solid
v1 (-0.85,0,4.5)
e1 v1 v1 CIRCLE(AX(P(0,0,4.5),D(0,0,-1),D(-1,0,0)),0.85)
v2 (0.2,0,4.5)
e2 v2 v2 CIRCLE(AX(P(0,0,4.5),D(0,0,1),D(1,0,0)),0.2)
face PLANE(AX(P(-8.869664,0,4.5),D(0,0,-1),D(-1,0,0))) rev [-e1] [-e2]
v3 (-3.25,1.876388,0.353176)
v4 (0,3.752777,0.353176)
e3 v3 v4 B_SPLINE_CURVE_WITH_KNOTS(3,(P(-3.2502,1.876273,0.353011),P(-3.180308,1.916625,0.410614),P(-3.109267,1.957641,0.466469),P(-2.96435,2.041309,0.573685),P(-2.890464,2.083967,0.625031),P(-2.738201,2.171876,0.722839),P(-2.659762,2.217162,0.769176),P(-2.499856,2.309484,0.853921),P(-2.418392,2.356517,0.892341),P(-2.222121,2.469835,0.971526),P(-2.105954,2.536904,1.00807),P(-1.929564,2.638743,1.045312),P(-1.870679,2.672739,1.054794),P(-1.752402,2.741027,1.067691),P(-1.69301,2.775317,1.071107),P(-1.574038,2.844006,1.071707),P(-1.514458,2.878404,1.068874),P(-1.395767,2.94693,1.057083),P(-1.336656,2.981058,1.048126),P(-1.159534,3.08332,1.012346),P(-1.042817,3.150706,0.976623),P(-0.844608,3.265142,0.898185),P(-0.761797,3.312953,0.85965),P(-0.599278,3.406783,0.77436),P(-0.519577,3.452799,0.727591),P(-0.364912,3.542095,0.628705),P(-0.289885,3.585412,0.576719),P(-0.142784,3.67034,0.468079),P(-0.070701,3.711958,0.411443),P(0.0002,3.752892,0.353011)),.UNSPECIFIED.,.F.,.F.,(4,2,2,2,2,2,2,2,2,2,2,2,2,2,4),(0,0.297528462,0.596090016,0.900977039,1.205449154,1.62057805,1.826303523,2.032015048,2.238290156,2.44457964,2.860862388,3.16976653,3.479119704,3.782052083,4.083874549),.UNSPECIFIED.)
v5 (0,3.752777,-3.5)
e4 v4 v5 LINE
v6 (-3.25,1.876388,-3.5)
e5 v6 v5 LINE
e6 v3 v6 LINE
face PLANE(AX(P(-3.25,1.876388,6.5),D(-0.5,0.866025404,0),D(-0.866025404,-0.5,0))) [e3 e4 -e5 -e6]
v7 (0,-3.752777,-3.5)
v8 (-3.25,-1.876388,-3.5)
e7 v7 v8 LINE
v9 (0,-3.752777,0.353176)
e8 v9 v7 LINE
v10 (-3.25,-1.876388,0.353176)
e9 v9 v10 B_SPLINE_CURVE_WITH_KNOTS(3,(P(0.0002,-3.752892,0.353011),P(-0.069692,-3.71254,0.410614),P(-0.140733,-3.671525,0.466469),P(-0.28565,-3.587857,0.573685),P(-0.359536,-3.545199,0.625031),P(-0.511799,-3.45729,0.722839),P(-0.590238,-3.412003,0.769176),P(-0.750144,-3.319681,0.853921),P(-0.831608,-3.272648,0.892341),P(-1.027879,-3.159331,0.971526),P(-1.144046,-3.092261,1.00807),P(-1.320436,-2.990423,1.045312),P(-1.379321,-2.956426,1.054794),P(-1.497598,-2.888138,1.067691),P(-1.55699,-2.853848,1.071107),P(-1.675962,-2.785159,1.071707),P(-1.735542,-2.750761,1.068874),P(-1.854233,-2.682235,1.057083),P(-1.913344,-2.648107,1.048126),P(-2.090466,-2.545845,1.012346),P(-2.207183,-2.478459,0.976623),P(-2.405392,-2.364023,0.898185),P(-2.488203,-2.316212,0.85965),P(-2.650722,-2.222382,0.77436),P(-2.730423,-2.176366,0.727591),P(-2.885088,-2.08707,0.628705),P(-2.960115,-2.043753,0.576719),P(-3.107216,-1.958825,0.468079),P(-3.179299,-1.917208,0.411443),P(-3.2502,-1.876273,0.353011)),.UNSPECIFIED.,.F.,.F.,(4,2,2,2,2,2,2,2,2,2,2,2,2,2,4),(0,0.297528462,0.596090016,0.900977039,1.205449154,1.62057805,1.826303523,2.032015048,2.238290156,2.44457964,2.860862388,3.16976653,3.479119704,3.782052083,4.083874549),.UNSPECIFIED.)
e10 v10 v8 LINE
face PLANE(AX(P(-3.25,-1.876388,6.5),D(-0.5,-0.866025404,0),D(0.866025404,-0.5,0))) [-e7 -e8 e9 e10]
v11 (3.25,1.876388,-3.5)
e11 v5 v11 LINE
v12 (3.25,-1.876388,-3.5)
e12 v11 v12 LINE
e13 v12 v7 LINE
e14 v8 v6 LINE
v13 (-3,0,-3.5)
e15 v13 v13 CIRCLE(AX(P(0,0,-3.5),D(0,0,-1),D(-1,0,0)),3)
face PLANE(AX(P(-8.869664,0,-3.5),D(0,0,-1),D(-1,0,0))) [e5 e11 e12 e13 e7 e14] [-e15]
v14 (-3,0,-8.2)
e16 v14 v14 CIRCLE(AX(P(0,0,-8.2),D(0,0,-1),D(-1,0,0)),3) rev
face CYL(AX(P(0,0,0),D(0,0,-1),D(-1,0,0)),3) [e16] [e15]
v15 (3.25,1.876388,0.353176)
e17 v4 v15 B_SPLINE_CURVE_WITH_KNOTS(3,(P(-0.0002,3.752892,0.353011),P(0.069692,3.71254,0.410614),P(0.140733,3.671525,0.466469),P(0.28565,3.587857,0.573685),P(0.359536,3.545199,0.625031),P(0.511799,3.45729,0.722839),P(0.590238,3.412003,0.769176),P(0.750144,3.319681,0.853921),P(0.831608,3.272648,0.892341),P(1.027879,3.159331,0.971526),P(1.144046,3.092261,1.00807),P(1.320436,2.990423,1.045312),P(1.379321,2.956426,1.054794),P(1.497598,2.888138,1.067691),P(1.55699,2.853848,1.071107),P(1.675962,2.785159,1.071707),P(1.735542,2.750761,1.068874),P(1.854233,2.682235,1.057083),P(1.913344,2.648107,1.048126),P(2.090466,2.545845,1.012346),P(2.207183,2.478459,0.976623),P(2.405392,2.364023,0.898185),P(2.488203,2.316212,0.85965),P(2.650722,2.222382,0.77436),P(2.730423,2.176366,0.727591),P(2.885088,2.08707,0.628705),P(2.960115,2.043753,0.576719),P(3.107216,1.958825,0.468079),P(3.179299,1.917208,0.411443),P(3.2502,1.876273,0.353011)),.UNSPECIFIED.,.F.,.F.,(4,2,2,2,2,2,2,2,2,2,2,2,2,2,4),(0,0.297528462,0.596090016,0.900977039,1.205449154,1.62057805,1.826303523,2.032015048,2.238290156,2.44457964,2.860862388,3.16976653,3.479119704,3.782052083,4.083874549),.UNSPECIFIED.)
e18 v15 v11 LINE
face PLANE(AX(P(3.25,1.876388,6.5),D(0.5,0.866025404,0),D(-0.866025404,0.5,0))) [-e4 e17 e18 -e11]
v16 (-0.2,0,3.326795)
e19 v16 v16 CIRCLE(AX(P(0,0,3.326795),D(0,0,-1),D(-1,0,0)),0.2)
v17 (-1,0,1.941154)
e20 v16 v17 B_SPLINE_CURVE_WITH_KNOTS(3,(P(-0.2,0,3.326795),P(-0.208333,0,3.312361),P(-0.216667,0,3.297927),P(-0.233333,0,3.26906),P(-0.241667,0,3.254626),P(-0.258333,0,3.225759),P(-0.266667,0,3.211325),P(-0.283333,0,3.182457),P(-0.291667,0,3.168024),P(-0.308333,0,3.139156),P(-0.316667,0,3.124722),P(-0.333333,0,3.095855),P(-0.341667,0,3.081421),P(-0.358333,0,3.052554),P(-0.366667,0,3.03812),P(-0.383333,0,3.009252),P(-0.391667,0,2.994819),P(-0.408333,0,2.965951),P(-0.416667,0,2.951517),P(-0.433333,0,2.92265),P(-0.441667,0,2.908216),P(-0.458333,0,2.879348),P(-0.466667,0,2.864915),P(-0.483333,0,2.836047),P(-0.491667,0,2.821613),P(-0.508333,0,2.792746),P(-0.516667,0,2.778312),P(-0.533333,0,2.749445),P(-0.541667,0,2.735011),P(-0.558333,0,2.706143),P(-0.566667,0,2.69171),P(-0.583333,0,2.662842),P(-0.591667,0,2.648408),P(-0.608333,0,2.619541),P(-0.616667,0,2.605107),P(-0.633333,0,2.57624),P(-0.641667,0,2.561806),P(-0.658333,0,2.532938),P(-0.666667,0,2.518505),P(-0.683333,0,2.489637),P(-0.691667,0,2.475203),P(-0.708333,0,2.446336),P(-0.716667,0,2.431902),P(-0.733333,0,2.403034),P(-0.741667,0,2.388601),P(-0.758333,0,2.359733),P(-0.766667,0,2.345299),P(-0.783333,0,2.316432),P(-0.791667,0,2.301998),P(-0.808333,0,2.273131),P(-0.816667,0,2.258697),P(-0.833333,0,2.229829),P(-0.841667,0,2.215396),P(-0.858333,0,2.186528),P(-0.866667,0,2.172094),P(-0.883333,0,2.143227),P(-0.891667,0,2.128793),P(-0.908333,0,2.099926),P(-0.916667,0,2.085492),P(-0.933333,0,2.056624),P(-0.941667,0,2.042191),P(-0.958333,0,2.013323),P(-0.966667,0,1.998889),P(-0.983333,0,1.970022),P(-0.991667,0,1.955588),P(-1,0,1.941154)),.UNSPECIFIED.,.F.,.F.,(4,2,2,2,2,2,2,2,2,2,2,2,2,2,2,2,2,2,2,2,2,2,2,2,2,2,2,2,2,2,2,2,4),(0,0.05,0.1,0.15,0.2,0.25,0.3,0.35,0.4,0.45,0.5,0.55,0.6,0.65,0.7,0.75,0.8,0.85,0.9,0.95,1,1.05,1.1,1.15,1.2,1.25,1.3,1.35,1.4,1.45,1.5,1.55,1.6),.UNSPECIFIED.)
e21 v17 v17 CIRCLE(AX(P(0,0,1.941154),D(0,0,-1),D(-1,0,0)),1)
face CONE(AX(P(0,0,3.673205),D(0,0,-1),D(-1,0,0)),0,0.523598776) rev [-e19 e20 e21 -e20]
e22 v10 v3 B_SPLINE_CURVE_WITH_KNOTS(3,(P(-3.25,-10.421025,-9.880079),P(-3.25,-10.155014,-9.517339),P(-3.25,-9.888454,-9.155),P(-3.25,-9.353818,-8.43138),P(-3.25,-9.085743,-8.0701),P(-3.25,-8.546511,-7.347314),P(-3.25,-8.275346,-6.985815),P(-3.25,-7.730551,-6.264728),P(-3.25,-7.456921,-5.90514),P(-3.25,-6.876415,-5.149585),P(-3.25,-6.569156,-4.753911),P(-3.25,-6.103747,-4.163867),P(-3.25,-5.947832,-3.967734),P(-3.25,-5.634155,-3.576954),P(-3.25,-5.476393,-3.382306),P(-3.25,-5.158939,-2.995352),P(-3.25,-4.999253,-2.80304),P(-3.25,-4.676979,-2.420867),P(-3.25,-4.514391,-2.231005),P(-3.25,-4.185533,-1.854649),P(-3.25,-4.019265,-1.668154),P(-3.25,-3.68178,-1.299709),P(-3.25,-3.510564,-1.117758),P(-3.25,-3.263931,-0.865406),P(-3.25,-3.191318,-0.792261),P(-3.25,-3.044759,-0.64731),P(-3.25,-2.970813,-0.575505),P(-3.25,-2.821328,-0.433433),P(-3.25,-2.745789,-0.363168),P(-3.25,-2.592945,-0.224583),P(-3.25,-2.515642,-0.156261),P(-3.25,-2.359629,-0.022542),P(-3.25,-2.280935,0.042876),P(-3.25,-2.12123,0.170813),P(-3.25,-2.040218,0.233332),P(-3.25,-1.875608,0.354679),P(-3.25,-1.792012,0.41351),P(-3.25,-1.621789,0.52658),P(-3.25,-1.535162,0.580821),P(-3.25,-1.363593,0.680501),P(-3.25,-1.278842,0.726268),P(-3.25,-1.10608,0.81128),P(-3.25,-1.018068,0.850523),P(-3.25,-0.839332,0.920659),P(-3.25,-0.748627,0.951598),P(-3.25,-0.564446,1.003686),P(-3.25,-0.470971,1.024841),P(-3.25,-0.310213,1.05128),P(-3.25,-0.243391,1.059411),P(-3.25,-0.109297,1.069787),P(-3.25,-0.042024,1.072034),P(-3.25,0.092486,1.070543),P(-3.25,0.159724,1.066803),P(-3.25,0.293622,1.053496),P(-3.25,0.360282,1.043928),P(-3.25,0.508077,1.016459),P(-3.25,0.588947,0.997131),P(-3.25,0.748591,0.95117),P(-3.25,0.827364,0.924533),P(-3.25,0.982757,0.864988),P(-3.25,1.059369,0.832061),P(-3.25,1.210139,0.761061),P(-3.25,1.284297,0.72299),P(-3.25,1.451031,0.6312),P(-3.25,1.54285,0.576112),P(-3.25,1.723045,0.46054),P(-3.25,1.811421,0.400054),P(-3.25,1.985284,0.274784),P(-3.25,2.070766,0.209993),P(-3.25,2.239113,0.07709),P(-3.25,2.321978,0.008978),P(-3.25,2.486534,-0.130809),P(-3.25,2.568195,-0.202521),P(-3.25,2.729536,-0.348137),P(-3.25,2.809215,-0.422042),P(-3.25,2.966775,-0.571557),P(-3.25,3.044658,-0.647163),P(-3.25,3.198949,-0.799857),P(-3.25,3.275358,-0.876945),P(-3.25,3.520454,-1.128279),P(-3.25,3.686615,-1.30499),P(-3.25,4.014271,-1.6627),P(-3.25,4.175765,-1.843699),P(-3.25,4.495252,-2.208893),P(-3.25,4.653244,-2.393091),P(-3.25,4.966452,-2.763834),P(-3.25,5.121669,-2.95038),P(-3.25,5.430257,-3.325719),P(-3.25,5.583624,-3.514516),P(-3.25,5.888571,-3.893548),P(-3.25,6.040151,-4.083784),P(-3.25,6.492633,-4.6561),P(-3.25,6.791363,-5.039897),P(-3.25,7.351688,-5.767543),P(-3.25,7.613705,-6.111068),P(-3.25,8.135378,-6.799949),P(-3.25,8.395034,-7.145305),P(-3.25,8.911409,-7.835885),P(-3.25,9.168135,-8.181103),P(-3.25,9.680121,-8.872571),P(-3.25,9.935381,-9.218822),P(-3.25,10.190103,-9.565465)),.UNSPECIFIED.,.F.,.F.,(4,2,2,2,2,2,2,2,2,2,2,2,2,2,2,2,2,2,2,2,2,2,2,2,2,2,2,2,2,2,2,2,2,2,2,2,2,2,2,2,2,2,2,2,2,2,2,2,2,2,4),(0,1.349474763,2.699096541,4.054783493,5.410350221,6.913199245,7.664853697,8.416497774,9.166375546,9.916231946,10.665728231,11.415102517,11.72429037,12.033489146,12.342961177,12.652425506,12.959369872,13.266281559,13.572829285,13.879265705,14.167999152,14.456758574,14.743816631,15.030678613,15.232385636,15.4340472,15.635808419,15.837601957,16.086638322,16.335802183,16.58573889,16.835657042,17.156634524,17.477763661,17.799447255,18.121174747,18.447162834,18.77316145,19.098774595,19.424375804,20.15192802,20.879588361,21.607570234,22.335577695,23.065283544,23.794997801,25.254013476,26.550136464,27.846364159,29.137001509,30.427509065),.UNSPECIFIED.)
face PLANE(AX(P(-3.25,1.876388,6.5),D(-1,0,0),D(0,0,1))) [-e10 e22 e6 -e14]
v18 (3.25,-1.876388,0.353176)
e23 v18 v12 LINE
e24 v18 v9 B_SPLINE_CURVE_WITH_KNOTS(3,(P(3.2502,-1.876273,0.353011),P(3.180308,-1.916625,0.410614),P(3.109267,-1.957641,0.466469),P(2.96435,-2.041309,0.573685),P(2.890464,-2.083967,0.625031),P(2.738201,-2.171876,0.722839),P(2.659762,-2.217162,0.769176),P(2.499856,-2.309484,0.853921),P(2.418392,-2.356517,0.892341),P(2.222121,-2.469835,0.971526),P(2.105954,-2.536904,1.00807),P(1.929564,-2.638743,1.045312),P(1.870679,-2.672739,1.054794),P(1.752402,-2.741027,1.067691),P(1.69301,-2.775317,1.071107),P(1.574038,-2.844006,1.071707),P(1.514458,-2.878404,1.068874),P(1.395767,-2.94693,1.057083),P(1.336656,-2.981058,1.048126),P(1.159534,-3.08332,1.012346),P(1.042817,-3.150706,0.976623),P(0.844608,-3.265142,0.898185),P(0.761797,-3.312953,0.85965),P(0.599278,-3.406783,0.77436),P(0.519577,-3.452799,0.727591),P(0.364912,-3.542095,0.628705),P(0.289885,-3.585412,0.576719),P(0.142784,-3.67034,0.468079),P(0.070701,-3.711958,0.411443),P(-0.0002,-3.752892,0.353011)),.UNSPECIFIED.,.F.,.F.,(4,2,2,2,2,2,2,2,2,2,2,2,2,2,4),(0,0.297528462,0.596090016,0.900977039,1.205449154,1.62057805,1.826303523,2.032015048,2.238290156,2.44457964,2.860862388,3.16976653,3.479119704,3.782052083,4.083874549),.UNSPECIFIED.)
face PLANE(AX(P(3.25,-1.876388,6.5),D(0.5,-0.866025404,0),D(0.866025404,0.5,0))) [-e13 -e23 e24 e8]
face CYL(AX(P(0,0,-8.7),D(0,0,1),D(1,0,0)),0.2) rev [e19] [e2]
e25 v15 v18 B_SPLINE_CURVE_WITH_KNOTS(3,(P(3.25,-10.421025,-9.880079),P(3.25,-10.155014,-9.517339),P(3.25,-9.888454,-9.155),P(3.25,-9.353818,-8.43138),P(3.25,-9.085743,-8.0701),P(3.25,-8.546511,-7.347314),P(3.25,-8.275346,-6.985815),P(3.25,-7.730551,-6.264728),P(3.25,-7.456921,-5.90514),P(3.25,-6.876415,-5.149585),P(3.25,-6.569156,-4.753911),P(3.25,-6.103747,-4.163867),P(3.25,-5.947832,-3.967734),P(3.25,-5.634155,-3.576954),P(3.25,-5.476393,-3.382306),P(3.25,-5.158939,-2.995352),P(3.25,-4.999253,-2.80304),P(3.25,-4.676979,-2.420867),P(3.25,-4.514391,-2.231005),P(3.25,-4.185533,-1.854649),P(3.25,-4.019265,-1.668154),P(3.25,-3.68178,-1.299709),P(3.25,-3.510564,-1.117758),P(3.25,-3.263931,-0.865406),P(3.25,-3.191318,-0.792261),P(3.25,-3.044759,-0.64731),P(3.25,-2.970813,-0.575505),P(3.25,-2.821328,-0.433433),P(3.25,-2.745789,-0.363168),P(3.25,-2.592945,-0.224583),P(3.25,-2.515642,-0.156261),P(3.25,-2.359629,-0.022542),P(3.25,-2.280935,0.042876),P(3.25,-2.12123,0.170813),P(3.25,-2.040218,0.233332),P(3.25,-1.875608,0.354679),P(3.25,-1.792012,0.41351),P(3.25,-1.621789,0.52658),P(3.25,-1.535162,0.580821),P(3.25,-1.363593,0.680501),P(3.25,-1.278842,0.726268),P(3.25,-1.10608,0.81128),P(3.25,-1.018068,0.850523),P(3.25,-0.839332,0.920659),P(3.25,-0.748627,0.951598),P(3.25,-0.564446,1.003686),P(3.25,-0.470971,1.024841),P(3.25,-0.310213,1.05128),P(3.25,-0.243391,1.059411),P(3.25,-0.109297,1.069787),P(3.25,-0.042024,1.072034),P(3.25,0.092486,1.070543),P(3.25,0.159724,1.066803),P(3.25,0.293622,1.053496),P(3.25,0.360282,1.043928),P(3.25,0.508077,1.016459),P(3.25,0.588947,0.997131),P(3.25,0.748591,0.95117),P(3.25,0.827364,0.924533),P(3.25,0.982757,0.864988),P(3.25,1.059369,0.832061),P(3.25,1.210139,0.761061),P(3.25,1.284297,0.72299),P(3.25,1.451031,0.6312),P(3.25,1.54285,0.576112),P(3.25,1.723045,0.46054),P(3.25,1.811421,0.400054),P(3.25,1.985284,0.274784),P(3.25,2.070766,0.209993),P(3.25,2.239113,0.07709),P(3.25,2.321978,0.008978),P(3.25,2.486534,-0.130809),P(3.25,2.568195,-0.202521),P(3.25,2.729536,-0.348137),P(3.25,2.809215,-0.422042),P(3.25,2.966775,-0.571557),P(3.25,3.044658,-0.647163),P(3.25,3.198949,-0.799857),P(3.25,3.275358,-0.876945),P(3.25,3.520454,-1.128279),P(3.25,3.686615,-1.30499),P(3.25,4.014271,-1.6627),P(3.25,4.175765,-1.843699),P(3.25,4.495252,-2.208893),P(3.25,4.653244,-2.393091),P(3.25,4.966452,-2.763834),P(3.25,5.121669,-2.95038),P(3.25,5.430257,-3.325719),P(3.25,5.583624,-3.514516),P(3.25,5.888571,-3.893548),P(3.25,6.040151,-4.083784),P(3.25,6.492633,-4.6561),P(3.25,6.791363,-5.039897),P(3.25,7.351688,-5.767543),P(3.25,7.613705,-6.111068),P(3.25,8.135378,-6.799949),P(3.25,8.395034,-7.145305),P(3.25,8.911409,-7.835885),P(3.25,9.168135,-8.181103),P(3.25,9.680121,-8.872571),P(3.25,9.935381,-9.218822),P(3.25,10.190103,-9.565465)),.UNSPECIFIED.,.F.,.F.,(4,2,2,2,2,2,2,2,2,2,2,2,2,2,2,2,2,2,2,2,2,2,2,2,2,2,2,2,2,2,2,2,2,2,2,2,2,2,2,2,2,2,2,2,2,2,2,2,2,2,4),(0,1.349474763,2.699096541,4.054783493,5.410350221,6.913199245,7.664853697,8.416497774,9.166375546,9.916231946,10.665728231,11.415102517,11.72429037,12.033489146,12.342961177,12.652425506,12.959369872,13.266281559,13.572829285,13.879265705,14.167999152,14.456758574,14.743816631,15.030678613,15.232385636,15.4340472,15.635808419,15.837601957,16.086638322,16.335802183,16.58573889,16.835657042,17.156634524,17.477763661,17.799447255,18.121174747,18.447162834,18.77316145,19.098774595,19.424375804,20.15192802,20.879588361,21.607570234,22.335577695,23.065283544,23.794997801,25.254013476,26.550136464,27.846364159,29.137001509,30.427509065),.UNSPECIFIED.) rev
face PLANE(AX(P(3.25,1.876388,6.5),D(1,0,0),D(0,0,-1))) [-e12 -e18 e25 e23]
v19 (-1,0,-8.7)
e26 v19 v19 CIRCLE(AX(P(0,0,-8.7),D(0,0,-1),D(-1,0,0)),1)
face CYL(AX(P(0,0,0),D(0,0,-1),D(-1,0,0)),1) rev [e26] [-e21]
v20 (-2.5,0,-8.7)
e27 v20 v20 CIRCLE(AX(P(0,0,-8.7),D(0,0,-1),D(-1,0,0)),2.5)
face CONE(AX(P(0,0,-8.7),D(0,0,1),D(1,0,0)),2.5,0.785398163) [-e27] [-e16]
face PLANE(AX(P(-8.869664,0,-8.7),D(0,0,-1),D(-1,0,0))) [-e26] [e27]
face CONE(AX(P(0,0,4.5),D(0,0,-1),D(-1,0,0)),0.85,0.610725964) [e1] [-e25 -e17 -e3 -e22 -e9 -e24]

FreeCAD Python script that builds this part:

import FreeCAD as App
import Part
import Sketcher

V = App.Vector
Q = App.Units.Quantity


def edges_at(feature, points):
    """Names of the edges that pass closest to the given points."""
    edges = feature.Shape.Edges
    near = lambda p: min(range(len(edges)), key=lambda i: edges[i].distToShape(Part.Vertex(*p))[0])
    return sorted({f"Edge{near(p) + 1}" for p in points})

doc = App.newDocument("Part")
params = doc.addObject("Spreadsheet::Sheet", "Params")
for row, (alias, value) in enumerate([
    ("sketch1_width", "2 mm"),
    ("sketch1_width2", "1 mm"),
    ("sketch1_length", "2 mm"),
    ("sketch1_height", "3.5 mm"),
    ("sketch1_height2", "5.2 mm"),
    ("revolution_angle", "360 deg"),
    ("pocket1_length", "10 mm"),
    ("chamfer_size", "0.5 mm"),
    ("sketch3_diameter", "0.4 mm"),
], start=1):
    params.set(f"A{row}", alias)
    params.set(f"B{row}", "=" + value)
    params.setAlias(f"B{row}", alias)

body = doc.addObject("PartDesign::Body", "Body")

# Sketch on XZ plane
sketch1 = doc.addObject("Sketcher::SketchObject", "Sketch")
body.addObject(sketch1)
sketch1.AttachmentSupport = (doc.XZ_Plane, [""])
sketch1.MapMode = "FlatFace"
sketch1.addGeometry([
    Part.LineSegment(V(3, -8.7, 0), V(1, -8.7, 0)),  # 0
    Part.LineSegment(V(1, -8.7, 0), V(1, 1.941154, 0)),  # 1
    Part.LineSegment(V(1, 1.941154, 0), V(0, 3.673205, 0)),  # 2
    Part.LineSegment(V(0, 3.673205, 0), V(0, 4.5, 0)),  # 3
    Part.LineSegment(V(0, 4.5, 0), V(0.85, 4.5, 0)),  # 4
    Part.LineSegment(V(0.85, 4.5, 0), V(4, 0, 0)),  # 5
    Part.LineSegment(V(4, 0, 0), V(4, -3.5, 0)),  # 6
    Part.LineSegment(V(4, -3.5, 0), V(3, -3.5, 0)),  # 7
    Part.LineSegment(V(3, -3.5, 0), V(3, -8.7, 0)),  # 8
], False)
sketch1.addConstraint([
    Sketcher.Constraint("Coincident", 0, 2, 1, 1),
    Sketcher.Constraint("Coincident", 1, 2, 2, 1),
    Sketcher.Constraint("Coincident", 2, 2, 3, 1),
    Sketcher.Constraint("Coincident", 3, 2, 4, 1),
    Sketcher.Constraint("Coincident", 4, 2, 5, 1),
    Sketcher.Constraint("Coincident", 5, 2, 6, 1),
    Sketcher.Constraint("Coincident", 6, 2, 7, 1),
    Sketcher.Constraint("Coincident", 7, 2, 8, 1),
    Sketcher.Constraint("Coincident", 8, 2, 0, 1),
    Sketcher.Constraint("Horizontal", 0),
    Sketcher.Constraint("Vertical", 1),
    Sketcher.Constraint("Vertical", 3),
    Sketcher.Constraint("Horizontal", 4),
    Sketcher.Constraint("Vertical", 6),
    Sketcher.Constraint("Horizontal", 7),
    Sketcher.Constraint("Vertical", 8),
    Sketcher.Constraint("PointOnObject", 2, 2, -2),
    Sketcher.Constraint("PointOnObject", 5, 2, -1),
    Sketcher.Constraint("DistanceX", 0, 2, 0, 1, Q("2 mm")),
    Sketcher.Constraint("DistanceX", 7, 2, 7, 1, Q("1 mm")),
    Sketcher.Constraint("Angle", 2, Q("120 deg")),
    Sketcher.Constraint("Distance", 2, Q("2 mm")),
    Sketcher.Constraint("DistanceY", 6, 2, 6, 1, Q("3.5 mm")),
    Sketcher.Constraint("DistanceY", 8, 2, 8, 1, Q("5.2 mm")),
    Sketcher.Constraint("DistanceY", 6, 2, 4, 2, Q("8 mm")),
    Sketcher.Constraint("DistanceX", 4, 1, 4, 2, Q("0.85 mm")),
    Sketcher.Constraint("DistanceY", 1, 1, 1, 2, Q("10.641154 mm")),
])
sketch1.setExpression("Constraints[18]", "Params.sketch1_width")
sketch1.setExpression("Constraints[19]", "Params.sketch1_width2")
sketch1.setExpression("Constraints[21]", "Params.sketch1_length")
sketch1.setExpression("Constraints[22]", "Params.sketch1_height")
sketch1.setExpression("Constraints[23]", "Params.sketch1_height2")
revolution = doc.addObject("PartDesign::Revolution", "Revolution")
body.addObject(revolution)
revolution.Profile = sketch1
revolution.ReferenceAxis = (sketch1, ["V_Axis"])
revolution.setExpression("Angle", "Params.revolution_angle")

# Sketch on XY plane
sketch2 = doc.addObject("Sketcher::SketchObject", "Sketch001")
body.addObject(sketch2)
sketch2.AttachmentSupport = (doc.XY_Plane, [""])
sketch2.MapMode = "FlatFace"
sketch2.AttachmentOffset = App.Placement(V(0, 0, -3.5), App.Rotation())
sketch2.addGeometry([
    Part.LineSegment(V(6.739, 6.739, 0), V(6.739, -6.739, 0)),  # 0
    Part.LineSegment(V(6.739, -6.739, 0), V(-6.739, -6.739, 0)),  # 1
    Part.LineSegment(V(-6.739, -6.739, 0), V(-6.739, 6.739, 0)),  # 2
    Part.LineSegment(V(-6.739, 6.739, 0), V(6.739, 6.739, 0)),  # 3
    Part.LineSegment(V(0, 3.752777, 0), V(-3.25, 1.876388, 0)),  # 4
    Part.LineSegment(V(-3.25, 1.876388, 0), V(-3.25, -1.876388, 0)),  # 5
    Part.LineSegment(V(-3.25, -1.876388, 0), V(0, -3.752777, 0)),  # 6
    Part.LineSegment(V(0, -3.752777, 0), V(3.25, -1.876388, 0)),  # 7
    Part.LineSegment(V(3.25, -1.876388, 0), V(3.25, 1.876388, 0)),  # 8
    Part.LineSegment(V(3.25, 1.876388, 0), V(0, 3.752777, 0)),  # 9
], False)
sketch2.addConstraint([
    Sketcher.Constraint("Coincident", 0, 2, 1, 1),
    Sketcher.Constraint("Coincident", 1, 2, 2, 1),
    Sketcher.Constraint("Coincident", 2, 2, 3, 1),
    Sketcher.Constraint("Coincident", 3, 2, 0, 1),
    Sketcher.Constraint("Coincident", 4, 2, 5, 1),
    Sketcher.Constraint("Coincident", 5, 2, 6, 1),
    Sketcher.Constraint("Coincident", 6, 2, 7, 1),
    Sketcher.Constraint("Coincident", 7, 2, 8, 1),
    Sketcher.Constraint("Coincident", 8, 2, 9, 1),
    Sketcher.Constraint("Coincident", 9, 2, 4, 1),
    Sketcher.Constraint("Vertical", 0),
    Sketcher.Constraint("Horizontal", 1),
    Sketcher.Constraint("Vertical", 2),
    Sketcher.Constraint("Horizontal", 3),
    Sketcher.Constraint("Vertical", 5),
    Sketcher.Constraint("Vertical", 8),
    Sketcher.Constraint("Symmetric", 0, 2, 2, 2, -1, 1),
    Sketcher.Constraint("Symmetric", 4, 2, 7, 2, -1, 1),
    Sketcher.Constraint("Symmetric", 6, 2, 9, 2, -1, 1),
    Sketcher.Constraint("PointOnObject", 6, 2, -2),
    Sketcher.Constraint("Parallel", 6, 9),
    Sketcher.Constraint("Horizontal", 5, 2, 7, 2),
    Sketcher.Constraint("Equal", 3, 0),
    Sketcher.Constraint("Angle", 4, Q("-150 deg")),
    Sketcher.Constraint("DistanceX", 5, 2, 7, 2, Q("6.5 mm")),
    Sketcher.Constraint("DistanceX", 1, 2, 1, 1, Q("13.478 mm")),
    Sketcher.Constraint("DistanceY", 5, 2, 5, 1, Q("3.752777 mm")),
])
pocket1 = doc.addObject("PartDesign::Pocket", "Pocket")
body.addObject(pocket1)
pocket1.Profile = sketch2
pocket1.setExpression("Length", "Params.pocket1_length")
pocket1.Reversed = True
doc.recompute()

chamfer = doc.addObject("PartDesign::Chamfer", "Chamfer")
body.addObject(chamfer)
chamfer.Base = (pocket1, edges_at(pocket1, [(3, 0, -8.7)]))
chamfer.setExpression("Size", "Params.chamfer_size")

# Sketch on XY plane
sketch3 = doc.addObject("Sketcher::SketchObject", "Sketch002")
body.addObject(sketch3)
sketch3.AttachmentSupport = (doc.XY_Plane, [""])
sketch3.MapMode = "FlatFace"
sketch3.AttachmentOffset = App.Placement(V(0, 0, 4.5), App.Rotation())
sketch3.addGeometry(Part.Circle(V(0, 0, 0), V(0, 0, 1), 0.2), False)
sketch3.addConstraint([
    Sketcher.Constraint("Coincident", 0, 3, -1, 1),
    Sketcher.Constraint("Diameter", 0, Q("0.4 mm")),
])
sketch3.setExpression("Constraints[1]", "Params.sketch3_diameter")
pocket2 = doc.addObject("PartDesign::Pocket", "Pocket001")
body.addObject(pocket2)
pocket2.Profile = sketch3
pocket2.Type = "ThroughAll"

doc.recompute()
